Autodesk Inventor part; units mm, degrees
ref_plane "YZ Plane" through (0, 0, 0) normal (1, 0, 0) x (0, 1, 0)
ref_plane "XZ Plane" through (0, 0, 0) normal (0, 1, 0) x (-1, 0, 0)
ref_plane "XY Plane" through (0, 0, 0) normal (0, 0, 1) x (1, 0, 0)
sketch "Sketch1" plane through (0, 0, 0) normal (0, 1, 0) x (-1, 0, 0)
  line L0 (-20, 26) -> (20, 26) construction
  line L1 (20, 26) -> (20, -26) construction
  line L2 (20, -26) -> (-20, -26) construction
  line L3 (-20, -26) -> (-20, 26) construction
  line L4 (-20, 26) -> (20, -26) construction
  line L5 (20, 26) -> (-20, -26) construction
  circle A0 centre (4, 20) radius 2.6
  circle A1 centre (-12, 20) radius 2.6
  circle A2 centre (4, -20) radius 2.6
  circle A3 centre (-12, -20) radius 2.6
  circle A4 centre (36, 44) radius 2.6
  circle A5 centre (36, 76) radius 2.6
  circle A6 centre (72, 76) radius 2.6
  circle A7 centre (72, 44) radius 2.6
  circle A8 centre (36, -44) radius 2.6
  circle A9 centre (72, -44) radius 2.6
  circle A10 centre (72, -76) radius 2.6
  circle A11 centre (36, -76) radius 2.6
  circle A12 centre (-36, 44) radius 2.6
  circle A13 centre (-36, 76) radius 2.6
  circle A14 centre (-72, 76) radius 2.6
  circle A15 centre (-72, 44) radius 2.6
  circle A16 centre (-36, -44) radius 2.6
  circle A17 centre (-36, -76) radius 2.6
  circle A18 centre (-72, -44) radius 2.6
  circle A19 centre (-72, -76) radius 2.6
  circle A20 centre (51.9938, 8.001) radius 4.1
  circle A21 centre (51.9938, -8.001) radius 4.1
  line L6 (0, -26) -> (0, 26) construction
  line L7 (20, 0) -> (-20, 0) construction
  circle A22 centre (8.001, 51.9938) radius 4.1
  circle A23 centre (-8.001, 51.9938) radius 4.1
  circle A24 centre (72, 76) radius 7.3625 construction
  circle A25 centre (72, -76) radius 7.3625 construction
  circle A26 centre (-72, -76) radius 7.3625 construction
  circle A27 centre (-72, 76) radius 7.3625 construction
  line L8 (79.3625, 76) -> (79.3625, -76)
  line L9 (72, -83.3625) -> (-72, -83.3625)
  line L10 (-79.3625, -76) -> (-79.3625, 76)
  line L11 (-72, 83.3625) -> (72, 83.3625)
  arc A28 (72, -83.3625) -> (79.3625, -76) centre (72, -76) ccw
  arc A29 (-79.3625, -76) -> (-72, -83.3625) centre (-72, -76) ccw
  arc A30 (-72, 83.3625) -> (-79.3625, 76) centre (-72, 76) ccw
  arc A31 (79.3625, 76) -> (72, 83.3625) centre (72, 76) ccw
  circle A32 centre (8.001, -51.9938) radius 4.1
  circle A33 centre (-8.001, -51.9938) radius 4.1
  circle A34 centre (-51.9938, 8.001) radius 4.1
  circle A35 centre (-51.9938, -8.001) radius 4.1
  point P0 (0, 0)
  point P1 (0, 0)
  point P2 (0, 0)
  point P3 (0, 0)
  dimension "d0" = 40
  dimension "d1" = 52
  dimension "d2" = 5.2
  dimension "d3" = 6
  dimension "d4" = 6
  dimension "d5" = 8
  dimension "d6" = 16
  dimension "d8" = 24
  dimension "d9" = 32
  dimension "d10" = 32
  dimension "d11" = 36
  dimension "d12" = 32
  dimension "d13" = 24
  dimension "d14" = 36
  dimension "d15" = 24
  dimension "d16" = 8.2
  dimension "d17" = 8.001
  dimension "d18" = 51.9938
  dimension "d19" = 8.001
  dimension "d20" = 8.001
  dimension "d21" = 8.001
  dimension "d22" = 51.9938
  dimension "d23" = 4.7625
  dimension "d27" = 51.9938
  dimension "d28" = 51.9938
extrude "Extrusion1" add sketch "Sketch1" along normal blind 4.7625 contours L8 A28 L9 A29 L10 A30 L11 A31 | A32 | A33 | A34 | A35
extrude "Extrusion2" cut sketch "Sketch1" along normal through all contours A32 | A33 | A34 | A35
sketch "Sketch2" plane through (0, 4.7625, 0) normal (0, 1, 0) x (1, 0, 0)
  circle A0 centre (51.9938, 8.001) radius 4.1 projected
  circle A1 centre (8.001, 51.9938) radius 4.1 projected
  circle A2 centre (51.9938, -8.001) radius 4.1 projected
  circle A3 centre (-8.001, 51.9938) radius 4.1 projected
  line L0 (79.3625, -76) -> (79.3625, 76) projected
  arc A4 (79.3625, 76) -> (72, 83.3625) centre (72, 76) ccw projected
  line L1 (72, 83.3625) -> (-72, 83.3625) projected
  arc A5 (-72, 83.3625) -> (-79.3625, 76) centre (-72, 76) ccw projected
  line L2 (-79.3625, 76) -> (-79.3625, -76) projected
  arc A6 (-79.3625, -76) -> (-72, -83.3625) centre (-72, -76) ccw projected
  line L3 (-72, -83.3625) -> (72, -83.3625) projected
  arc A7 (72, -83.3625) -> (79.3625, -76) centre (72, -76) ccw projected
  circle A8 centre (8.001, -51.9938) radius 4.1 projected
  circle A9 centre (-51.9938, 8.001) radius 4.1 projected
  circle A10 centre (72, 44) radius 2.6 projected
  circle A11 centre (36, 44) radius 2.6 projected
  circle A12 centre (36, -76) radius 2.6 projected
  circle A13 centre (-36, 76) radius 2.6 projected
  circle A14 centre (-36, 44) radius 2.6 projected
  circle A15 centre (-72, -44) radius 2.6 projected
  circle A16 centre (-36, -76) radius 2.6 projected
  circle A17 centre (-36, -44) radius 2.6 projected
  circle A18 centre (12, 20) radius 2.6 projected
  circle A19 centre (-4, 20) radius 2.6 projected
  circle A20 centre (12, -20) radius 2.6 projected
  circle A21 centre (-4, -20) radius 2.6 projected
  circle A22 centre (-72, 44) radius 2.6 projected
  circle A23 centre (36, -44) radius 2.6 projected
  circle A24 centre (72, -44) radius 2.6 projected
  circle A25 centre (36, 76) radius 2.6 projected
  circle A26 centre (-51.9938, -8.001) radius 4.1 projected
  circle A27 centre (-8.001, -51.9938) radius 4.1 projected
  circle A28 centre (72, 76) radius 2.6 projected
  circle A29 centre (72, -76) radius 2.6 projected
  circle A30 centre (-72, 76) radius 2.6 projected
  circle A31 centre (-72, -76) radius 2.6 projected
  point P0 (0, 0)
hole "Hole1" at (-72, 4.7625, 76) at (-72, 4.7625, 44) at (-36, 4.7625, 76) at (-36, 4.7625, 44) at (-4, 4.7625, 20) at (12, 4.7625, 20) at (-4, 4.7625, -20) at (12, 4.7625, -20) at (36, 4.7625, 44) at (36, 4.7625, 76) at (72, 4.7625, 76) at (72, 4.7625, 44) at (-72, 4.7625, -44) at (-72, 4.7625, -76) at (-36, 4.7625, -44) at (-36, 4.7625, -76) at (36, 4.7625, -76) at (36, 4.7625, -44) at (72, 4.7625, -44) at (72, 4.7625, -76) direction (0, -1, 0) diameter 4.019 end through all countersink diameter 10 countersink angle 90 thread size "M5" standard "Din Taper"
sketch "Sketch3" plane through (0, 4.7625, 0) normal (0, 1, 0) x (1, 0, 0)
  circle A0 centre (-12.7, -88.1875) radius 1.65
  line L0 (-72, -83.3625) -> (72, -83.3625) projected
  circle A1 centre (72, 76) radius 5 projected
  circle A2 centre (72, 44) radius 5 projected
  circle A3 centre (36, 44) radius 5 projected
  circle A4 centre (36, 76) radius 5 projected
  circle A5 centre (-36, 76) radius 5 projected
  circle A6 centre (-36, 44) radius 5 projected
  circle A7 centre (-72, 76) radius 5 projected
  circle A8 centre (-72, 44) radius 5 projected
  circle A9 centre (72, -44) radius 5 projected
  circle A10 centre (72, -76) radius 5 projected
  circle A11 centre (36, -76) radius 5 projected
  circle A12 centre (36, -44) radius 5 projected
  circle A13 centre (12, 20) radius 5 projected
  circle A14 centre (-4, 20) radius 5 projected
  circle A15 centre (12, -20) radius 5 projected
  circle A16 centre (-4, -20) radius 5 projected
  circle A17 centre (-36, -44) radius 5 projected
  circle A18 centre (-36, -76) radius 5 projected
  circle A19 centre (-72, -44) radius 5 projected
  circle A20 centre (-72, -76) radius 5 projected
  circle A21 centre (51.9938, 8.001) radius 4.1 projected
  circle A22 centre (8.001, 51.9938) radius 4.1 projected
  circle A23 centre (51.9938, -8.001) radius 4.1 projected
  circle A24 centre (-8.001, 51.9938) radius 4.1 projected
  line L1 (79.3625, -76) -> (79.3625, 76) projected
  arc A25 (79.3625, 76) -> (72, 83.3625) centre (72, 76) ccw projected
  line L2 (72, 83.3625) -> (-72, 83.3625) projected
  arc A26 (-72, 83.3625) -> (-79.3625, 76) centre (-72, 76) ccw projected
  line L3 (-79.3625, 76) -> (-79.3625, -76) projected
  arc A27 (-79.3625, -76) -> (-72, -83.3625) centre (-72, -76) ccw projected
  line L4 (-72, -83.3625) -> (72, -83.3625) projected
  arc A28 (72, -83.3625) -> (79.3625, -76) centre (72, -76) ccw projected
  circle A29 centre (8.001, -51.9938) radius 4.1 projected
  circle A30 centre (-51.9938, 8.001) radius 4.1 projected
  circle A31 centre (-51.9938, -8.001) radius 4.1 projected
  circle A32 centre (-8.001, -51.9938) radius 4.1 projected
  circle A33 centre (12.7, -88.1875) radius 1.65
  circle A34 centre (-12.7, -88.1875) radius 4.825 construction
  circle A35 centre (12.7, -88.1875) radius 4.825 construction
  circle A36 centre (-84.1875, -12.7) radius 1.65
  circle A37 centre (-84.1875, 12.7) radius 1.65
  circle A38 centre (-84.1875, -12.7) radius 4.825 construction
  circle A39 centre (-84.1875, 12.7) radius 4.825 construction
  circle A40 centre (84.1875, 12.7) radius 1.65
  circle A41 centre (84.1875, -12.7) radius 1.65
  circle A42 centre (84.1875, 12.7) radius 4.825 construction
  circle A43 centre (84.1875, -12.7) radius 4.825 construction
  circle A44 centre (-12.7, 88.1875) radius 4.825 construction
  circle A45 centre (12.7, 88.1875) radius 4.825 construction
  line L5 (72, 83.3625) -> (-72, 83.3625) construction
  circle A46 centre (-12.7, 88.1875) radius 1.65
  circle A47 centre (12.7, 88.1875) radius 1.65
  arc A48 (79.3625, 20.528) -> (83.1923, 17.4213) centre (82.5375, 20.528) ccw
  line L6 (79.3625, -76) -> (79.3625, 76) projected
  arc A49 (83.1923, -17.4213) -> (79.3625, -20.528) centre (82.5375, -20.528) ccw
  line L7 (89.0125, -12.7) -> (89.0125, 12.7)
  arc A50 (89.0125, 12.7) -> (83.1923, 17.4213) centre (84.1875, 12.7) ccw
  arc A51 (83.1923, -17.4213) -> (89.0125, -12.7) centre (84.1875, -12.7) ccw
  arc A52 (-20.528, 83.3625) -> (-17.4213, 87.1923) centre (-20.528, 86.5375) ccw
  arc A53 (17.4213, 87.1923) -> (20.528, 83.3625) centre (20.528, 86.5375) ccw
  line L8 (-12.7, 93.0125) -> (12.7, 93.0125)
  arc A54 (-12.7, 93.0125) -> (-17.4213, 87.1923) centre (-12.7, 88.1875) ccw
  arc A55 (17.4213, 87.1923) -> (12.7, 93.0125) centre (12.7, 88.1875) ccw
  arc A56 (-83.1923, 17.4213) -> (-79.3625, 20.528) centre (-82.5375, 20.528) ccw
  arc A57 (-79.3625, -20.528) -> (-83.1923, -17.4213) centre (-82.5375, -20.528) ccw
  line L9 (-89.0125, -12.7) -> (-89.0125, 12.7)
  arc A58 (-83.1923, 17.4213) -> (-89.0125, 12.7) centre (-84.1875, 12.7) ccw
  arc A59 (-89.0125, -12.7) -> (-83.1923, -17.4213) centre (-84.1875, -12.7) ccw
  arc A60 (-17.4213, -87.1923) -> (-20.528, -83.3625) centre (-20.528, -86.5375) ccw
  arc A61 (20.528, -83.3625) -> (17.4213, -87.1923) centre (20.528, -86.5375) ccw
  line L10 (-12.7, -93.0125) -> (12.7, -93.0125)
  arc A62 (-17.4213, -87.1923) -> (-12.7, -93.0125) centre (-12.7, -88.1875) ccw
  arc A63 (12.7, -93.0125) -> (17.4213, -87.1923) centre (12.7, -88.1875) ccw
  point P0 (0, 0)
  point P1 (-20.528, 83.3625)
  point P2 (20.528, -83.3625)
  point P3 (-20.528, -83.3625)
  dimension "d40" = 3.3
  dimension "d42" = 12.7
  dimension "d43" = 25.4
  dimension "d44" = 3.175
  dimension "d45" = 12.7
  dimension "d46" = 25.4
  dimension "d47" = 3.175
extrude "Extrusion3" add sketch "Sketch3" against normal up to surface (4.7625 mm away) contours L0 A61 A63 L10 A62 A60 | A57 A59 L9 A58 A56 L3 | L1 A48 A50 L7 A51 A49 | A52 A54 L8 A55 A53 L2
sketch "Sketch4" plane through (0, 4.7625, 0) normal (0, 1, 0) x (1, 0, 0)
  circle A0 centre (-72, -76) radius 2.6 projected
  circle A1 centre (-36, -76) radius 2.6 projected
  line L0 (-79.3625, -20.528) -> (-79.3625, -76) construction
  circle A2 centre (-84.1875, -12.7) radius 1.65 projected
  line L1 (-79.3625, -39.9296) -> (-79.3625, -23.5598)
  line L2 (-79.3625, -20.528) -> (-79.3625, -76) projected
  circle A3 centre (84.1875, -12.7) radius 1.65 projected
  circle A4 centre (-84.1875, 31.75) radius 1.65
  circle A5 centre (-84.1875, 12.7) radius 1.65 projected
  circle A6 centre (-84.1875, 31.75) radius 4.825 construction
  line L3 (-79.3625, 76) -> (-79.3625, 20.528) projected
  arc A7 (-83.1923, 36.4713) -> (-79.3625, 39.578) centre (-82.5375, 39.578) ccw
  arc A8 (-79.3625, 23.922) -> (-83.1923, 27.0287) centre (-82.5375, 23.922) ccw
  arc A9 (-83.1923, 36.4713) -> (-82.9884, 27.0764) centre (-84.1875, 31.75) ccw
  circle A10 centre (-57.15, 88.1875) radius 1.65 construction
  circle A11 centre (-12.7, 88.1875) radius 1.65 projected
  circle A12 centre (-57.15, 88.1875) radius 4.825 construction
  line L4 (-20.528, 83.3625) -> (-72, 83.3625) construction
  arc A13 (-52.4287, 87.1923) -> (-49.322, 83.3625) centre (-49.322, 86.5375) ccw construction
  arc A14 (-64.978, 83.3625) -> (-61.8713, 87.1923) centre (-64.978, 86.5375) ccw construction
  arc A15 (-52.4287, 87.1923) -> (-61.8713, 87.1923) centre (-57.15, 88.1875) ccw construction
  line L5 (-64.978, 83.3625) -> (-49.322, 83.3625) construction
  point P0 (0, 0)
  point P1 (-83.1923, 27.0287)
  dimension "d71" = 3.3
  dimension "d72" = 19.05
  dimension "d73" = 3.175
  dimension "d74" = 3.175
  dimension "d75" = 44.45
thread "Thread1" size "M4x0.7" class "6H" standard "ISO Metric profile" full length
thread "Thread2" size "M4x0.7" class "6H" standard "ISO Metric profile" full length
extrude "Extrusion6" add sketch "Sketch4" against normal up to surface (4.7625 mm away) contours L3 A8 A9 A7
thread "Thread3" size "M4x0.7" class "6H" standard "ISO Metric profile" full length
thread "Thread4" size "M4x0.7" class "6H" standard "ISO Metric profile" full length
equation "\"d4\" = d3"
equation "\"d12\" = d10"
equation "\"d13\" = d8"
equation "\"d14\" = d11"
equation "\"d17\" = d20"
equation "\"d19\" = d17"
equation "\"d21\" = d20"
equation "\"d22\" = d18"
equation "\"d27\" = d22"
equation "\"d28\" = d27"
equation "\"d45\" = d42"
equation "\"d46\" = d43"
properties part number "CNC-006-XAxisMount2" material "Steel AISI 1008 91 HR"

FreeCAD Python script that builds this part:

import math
import FreeCAD as App
import Part
import Sketcher

doc = App.newDocument("Part")
body = doc.addObject("PartDesign::Body", "Body")

# Sketch on XZ plane
sketch1 = body.newObject("Sketcher::SketchObject", "Sketch")
sketch1.AttachmentSupport = (doc.getObject("XZ_Plane"), [""])
sketch1.MapMode = "FlatFace"
sketch1.addGeometry([
    Part.LineSegment(App.Vector(-79.4, -76, 0), App.Vector(-79.4, 76, 0)),  # 0
    Part.ArcOfCircle(Part.Circle(App.Vector(-72, 76, 0), App.Vector(0, 0, 1), 7.4), math.radians(90), math.radians(180)),  # 1
    Part.LineSegment(App.Vector(-72, 83.4, 0), App.Vector(72, 83.4, 0)),  # 2
    Part.ArcOfCircle(Part.Circle(App.Vector(72, 76, 0), App.Vector(0, 0, 1), 7.4), math.radians(0), math.radians(90)),  # 3
    Part.LineSegment(App.Vector(79.4, 76, 0), App.Vector(79.4, -76, 0)),  # 4
    Part.ArcOfCircle(Part.Circle(App.Vector(72, -76, 0), App.Vector(0, 0, 1), 7.4), math.radians(-90), math.radians(0)),  # 5
    Part.LineSegment(App.Vector(72, -83.4, 0), App.Vector(-72, -83.4, 0)),  # 6
    Part.ArcOfCircle(Part.Circle(App.Vector(-72, -76, 0), App.Vector(0, 0, 1), 7.4), math.radians(180), math.radians(270)),  # 7
    Part.Circle(App.Vector(72, -76, 0), App.Vector(0, 0, 1), 2.6),  # 8
    Part.Circle(App.Vector(72, -44, 0), App.Vector(0, 0, 1), 2.6),  # 9
    Part.Circle(App.Vector(36, -76, 0), App.Vector(0, 0, 1), 2.6),  # 10
    Part.Circle(App.Vector(36, -44, 0), App.Vector(0, 0, 1), 2.6),  # 11
    Part.Circle(App.Vector(12, -20, 0), App.Vector(0, 0, 1), 2.6),  # 12
    Part.Circle(App.Vector(-36, -76, 0), App.Vector(0, 0, 1), 2.6),  # 13
    Part.Circle(App.Vector(-36, -44, 0), App.Vector(0, 0, 1), 2.6),  # 14
    Part.Circle(App.Vector(-72, -76, 0), App.Vector(0, 0, 1), 2.6),  # 15
    Part.Circle(App.Vector(-72, -44, 0), App.Vector(0, 0, 1), 2.6),  # 16
    Part.Circle(App.Vector(-4, -20, 0), App.Vector(0, 0, 1), 2.6),  # 17
    Part.Circle(App.Vector(-52, -8, 0), App.Vector(0, 0, 1), 4.1),  # 18
    Part.Circle(App.Vector(12, 20, 0), App.Vector(0, 0, 1), 2.6),  # 19
    Part.Circle(App.Vector(72, 44, 0), App.Vector(0, 0, 1), 2.6),  # 20
    Part.Circle(App.Vector(72, 76, 0), App.Vector(0, 0, 1), 2.6),  # 21
    Part.Circle(App.Vector(36, 44, 0), App.Vector(0, 0, 1), 2.6),  # 22
    Part.Circle(App.Vector(8, 52, 0), App.Vector(0, 0, 1), 4.1),  # 23
    Part.Circle(App.Vector(36, 76, 0), App.Vector(0, 0, 1), 2.6),  # 24
    Part.Circle(App.Vector(-4, 20, 0), App.Vector(0, 0, 1), 2.6),  # 25
    Part.Circle(App.Vector(-52, 8, 0), App.Vector(0, 0, 1), 4.1),  # 26
    Part.Circle(App.Vector(-8, 52, 0), App.Vector(0, 0, 1), 4.1),  # 27
    Part.Circle(App.Vector(-36, 44, 0), App.Vector(0, 0, 1), 2.6),  # 28
    Part.Circle(App.Vector(-36, 76, 0), App.Vector(0, 0, 1), 2.6),  # 29
    Part.Circle(App.Vector(-72, 44, 0), App.Vector(0, 0, 1), 2.6),  # 30
    Part.Circle(App.Vector(-72, 76, 0), App.Vector(0, 0, 1), 2.6),  # 31
], False)
sketch1.addConstraint([
    Sketcher.Constraint("Tangent", 0, 2, 1, 2),
    Sketcher.Constraint("Tangent", 1, 1, 2, 1),
    Sketcher.Constraint("Tangent", 2, 2, 3, 2),
    Sketcher.Constraint("Tangent", 3, 1, 4, 1),
    Sketcher.Constraint("Tangent", 4, 2, 5, 2),
    Sketcher.Constraint("Tangent", 5, 1, 6, 1),
    Sketcher.Constraint("Tangent", 6, 2, 7, 2),
    Sketcher.Constraint("Tangent", 7, 1, 0, 1),
    Sketcher.Constraint("Vertical", 0),
    Sketcher.Constraint("Horizontal", 2),
    Sketcher.Constraint("Vertical", 4),
    Sketcher.Constraint("Horizontal", 6),
    Sketcher.Constraint("Coincident", 8, 3, 5, 3),
    Sketcher.Constraint("Coincident", 15, 3, 7, 3),
    Sketcher.Constraint("Coincident", 21, 3, 3, 3),
    Sketcher.Constraint("Coincident", 31, 3, 1, 3),
    Sketcher.Constraint("Equal", 1, 3),
    Sketcher.Constraint("Equal", 3, 5),
    Sketcher.Constraint("Equal", 5, 7),
    Sketcher.Constraint("Equal", 8, 9),
    Sketcher.Constraint("Equal", 9, 10),
    Sketcher.Constraint("Equal", 10, 11),
    Sketcher.Constraint("Equal", 11, 12),
    Sketcher.Constraint("Equal", 12, 13),
    Sketcher.Constraint("Equal", 13, 14),
    Sketcher.Constraint("Equal", 14, 15),
    Sketcher.Constraint("Equal", 15, 16),
    Sketcher.Constraint("Equal", 16, 17),
    Sketcher.Constraint("Equal", 17, 19),
    Sketcher.Constraint("Equal", 19, 20),
    Sketcher.Constraint("Equal", 20, 21),
    Sketcher.Constraint("Equal", 21, 22),
    Sketcher.Constraint("Equal", 18, 23),
    Sketcher.Constraint("Equal", 22, 24),
    Sketcher.Constraint("Equal", 24, 25),
    Sketcher.Constraint("Equal", 23, 26),
    Sketcher.Constraint("Equal", 26, 27),
    Sketcher.Constraint("Equal", 25, 28),
    Sketcher.Constraint("Equal", 28, 29),
    Sketcher.Constraint("Equal", 29, 30),
    Sketcher.Constraint("Equal", 30, 31),
    Sketcher.Constraint("Symmetric", 1, 3, 5, 3, -1, 1),
    Sketcher.Constraint("Symmetric", 16, 3, 20, 3, -1, 1),
    Sketcher.Constraint("Symmetric", 14, 3, 22, 3, -1, 1),
    Sketcher.Constraint("Symmetric", 13, 3, 24, 3, -1, 1),
    Sketcher.Constraint("Symmetric", 11, 3, 28, 3, -1, 1),
    Sketcher.Constraint("Symmetric", 10, 3, 29, 3, -1, 1),
    Sketcher.Constraint("Symmetric", 9, 3, 30, 3, -1, 1),
    Sketcher.Constraint("Symmetric", 10, 3, 13, 3, -2),
    Sketcher.Constraint("Symmetric", 11, 3, 14, 3, -2),
    Sketcher.Constraint("Symmetric", 9, 3, 16, 3, -2),
    Sketcher.Constraint("Symmetric", 23, 3, 27, 3, -2),
    Sketcher.Constraint("Symmetric", 12, 3, 19, 3, -1),
    Sketcher.Constraint("Symmetric", 17, 3, 25, 3, -1),
    Sketcher.Constraint("Symmetric", 18, 3, 26, 3, -1),
    Sketcher.Constraint("Horizontal", 8, 3, 10, 3),
    Sketcher.Constraint("Horizontal", 9, 3, 11, 3),
    Sketcher.Constraint("Horizontal", 12, 3, 17, 3),
    Sketcher.Constraint("Vertical", 8, 3, 9, 3),
    Sketcher.Constraint("Vertical", 10, 3, 11, 3),
    Sketcher.Constraint("Diameter", 8, 5.2),
    Sketcher.Constraint("Diameter", 18, 8.2),
    Sketcher.Constraint("DistanceX", -1, 1, 10, 3, 36.0),
    Sketcher.Constraint("DistanceY", 5, 3, 9, 3, 32.0),
    Sketcher.Constraint("DistanceX", 10, 3, 5, 3, 36.0),
    Sketcher.Constraint("DistanceX", 12, 3, 11, 3, 24.0),
    Sketcher.Constraint("DistanceY", 11, 3, 12, 3, 24.0),
    Sketcher.Constraint("DistanceX", 17, 3, 12, 3, 16.0),
    Sketcher.Constraint("DistanceY", 12, 3, 19, 3, 40.0),
    Sketcher.Constraint("DistanceY", 18, 3, -1, 1, 8.001),
    Sketcher.Constraint("DistanceX", -1, 1, 23, 3, 8.001),
    Sketcher.Constraint("DistanceX", 18, 3, -1, 1, 51.9938),
    Sketcher.Constraint("DistanceY", -1, 1, 23, 3, 51.9938),
    Sketcher.Constraint("Radius", 1, 7.3625),
])
pad1 = body.newObject("PartDesign::Pad", "Pad")
pad1.Profile = sketch1
pad1.Length = 4.7625
pad1.Reversed = True

# Sketch on XZ plane
sketch2 = body.newObject("Sketcher::SketchObject", "Sketch001")
sketch2.AttachmentSupport = (doc.getObject("XZ_Plane"), [""])
sketch2.MapMode = "FlatFace"
sketch2.addGeometry([
    Part.Circle(App.Vector(-8, -52, 0), App.Vector(0, 0, 1), 4.1),
    Part.Circle(App.Vector(8, -52, 0), App.Vector(0, 0, 1), 4.1),
    Part.Circle(App.Vector(52, 8, 0), App.Vector(0, 0, 1), 4.1),
    Part.Circle(App.Vector(52, -8, 0), App.Vector(0, 0, 1), 4.1),
], False)
sketch2.addConstraint([
    Sketcher.Constraint("Equal", 0, 1),
    Sketcher.Constraint("Equal", 1, 2),
    Sketcher.Constraint("Equal", 2, 3),
    Sketcher.Constraint("Symmetric", 0, 3, 1, 3, -2),
    Sketcher.Constraint("Symmetric", 2, 3, 3, 3, -1),
    Sketcher.Constraint("Diameter", 0, 8.2),
    Sketcher.Constraint("DistanceX", 0, 3, -1, 1, 8.001),
    Sketcher.Constraint("DistanceY", -1, 1, 2, 3, 8.001),
    Sketcher.Constraint("DistanceY", 0, 3, -1, 1, 51.9938),
    Sketcher.Constraint("DistanceX", -1, 1, 2, 3, 51.9938),
])
pocket1 = body.newObject("PartDesign::Pocket", "Pocket")
pocket1.Profile = sketch2
pocket1.Type = "ThroughAll"

# Sketch on XZ plane
sketch3 = body.newObject("Sketcher::SketchObject", "Sketch002")
sketch3.AttachmentSupport = (doc.getObject("XZ_Plane"), [""])
sketch3.MapMode = "FlatFace"
sketch3.AttachmentOffset = App.Placement(App.Vector(0, 0, -4.7625), App.Rotation())
sketch3.addGeometry([
    Part.Circle(App.Vector(-72, 76, 0), App.Vector(0, 0, 1), 2),  # 0
    Part.Circle(App.Vector(-72, 44, 0), App.Vector(0, 0, 1), 2),  # 1
    Part.Circle(App.Vector(-36, 76, 0), App.Vector(0, 0, 1), 2),  # 2
    Part.Circle(App.Vector(-36, 44, 0), App.Vector(0, 0, 1), 2),  # 3
    Part.Circle(App.Vector(-4, 20, 0), App.Vector(0, 0, 1), 2),  # 4
    Part.Circle(App.Vector(12, 20, 0), App.Vector(0, 0, 1), 2),  # 5
    Part.Circle(App.Vector(-4, -20, 0), App.Vector(0, 0, 1), 2),  # 6
    Part.Circle(App.Vector(12, -20, 0), App.Vector(0, 0, 1), 2),  # 7
    Part.Circle(App.Vector(36, 44, 0), App.Vector(0, 0, 1), 2),  # 8
    Part.Circle(App.Vector(36, 76, 0), App.Vector(0, 0, 1), 2),  # 9
    Part.Circle(App.Vector(72, 76, 0), App.Vector(0, 0, 1), 2),  # 10
    Part.Circle(App.Vector(72, 44, 0), App.Vector(0, 0, 1), 2),  # 11
    Part.Circle(App.Vector(-72, -44, 0), App.Vector(0, 0, 1), 2),  # 12
    Part.Circle(App.Vector(-72, -76, 0), App.Vector(0, 0, 1), 2),  # 13
    Part.Circle(App.Vector(-36, -44, 0), App.Vector(0, 0, 1), 2),  # 14
    Part.Circle(App.Vector(-36, -76, 0), App.Vector(0, 0, 1), 2),  # 15
    Part.Circle(App.Vector(36, -76, 0), App.Vector(0, 0, 1), 2),  # 16
    Part.Circle(App.Vector(36, -44, 0), App.Vector(0, 0, 1), 2),  # 17
    Part.Circle(App.Vector(72, -44, 0), App.Vector(0, 0, 1), 2),  # 18
    Part.Circle(App.Vector(72, -76, 0), App.Vector(0, 0, 1), 2),  # 19
], False)
sketch3.addConstraint([
    Sketcher.Constraint("Equal", 0, 1),
    Sketcher.Constraint("Equal", 1, 2),
    Sketcher.Constraint("Equal", 2, 3),
    Sketcher.Constraint("Equal", 3, 4),
    Sketcher.Constraint("Equal", 4, 5),
    Sketcher.Constraint("Equal", 5, 6),
    Sketcher.Constraint("Equal", 6, 7),
    Sketcher.Constraint("Equal", 7, 8),
    Sketcher.Constraint("Equal", 8, 9),
    Sketcher.Constraint("Equal", 9, 10),
    Sketcher.Constraint("Equal", 10, 11),
    Sketcher.Constraint("Equal", 11, 12),
    Sketcher.Constraint("Equal", 12, 13),
    Sketcher.Constraint("Equal", 13, 14),
    Sketcher.Constraint("Equal", 14, 15),
    Sketcher.Constraint("Equal", 15, 16),
    Sketcher.Constraint("Equal", 16, 17),
    Sketcher.Constraint("Equal", 17, 18),
    Sketcher.Constraint("Equal", 18, 19),
    Sketcher.Constraint("Symmetric", 11, 3, 12, 3, -1, 1),
    Sketcher.Constraint("Symmetric", 10, 3, 13, 3, -1, 1),
    Sketcher.Constraint("Symmetric", 8, 3, 14, 3, -1, 1),
    Sketcher.Constraint("Symmetric", 9, 3, 15, 3, -1, 1),
    Sketcher.Constraint("Symmetric", 2, 3, 16, 3, -1, 1),
    Sketcher.Constraint("Symmetric", 3, 3, 17, 3, -1, 1),
    Sketcher.Constraint("Symmetric", 1, 3, 18, 3, -1, 1),
    Sketcher.Constraint("Symmetric", 0, 3, 19, 3, -1, 1),
    Sketcher.Constraint("Symmetric", 3, 3, 8, 3, -2),
    Sketcher.Constraint("Symmetric", 2, 3, 9, 3, -2),
    Sketcher.Constraint("Symmetric", 0, 3, 10, 3, -2),
    Sketcher.Constraint("Symmetric", 1, 3, 11, 3, -2),
    Sketcher.Constraint("Symmetric", 4, 3, 6, 3, -1),
    Sketcher.Constraint("Symmetric", 5, 3, 7, 3, -1),
    Sketcher.Constraint("Horizontal", 0, 3, 2, 3),
    Sketcher.Constraint("Horizontal", 1, 3, 3, 3),
    Sketcher.Constraint("Horizontal", 4, 3, 5, 3),
    Sketcher.Constraint("Vertical", 0, 3, 1, 3),
    Sketcher.Constraint("Vertical", 2, 3, 3, 3),
    Sketcher.Constraint("Diameter", 0, 4.019),
    Sketcher.Constraint("DistanceX", 0, 3, -1, 1, 72.0),
    Sketcher.Constraint("DistanceY", -1, 1, 0, 3, 76.0),
    Sketcher.Constraint("DistanceY", -1, 1, 1, 3, 44.0),
    Sketcher.Constraint("DistanceX", 2, 3, -1, 1, 36.0),
    Sketcher.Constraint("DistanceX", 4, 3, -1, 1, 4.0),
    Sketcher.Constraint("DistanceY", -1, 1, 4, 3, 20.0),
    Sketcher.Constraint("DistanceX", -1, 1, 5, 3, 12.0),
])
doc.recompute()
hole = body.newObject("PartDesign::Hole", "Hole")
hole.Profile = sketch3
hole.ThreadType = "None"
hole.Diameter = 4.019
hole.DepthType = "ThroughAll"
hole.HoleCutType = "Countersink"
hole.HoleCutDiameter = 10
hole.HoleCutCountersinkAngle = 90
hole.Reversed = True

# Sketch on XZ plane
sketch4 = body.newObject("Sketcher::SketchObject", "Sketch003")
sketch4.AttachmentSupport = (doc.getObject("XZ_Plane"), [""])
sketch4.MapMode = "FlatFace"
sketch4.AttachmentOffset = App.Placement(App.Vector(0, 0, -4.7625), App.Rotation())
sketch4.addGeometry([
    Part.LineSegment(App.Vector(20.5, 83.4, 0), App.Vector(-20.5, 83.4, 0)),  # 0
    Part.ArcOfCircle(Part.Circle(App.Vector(-20.5, 86.5, 0), App.Vector(0, 0, 1), 3.2), math.radians(-90), math.radians(12)),  # 1
    Part.ArcOfCircle(Part.Circle(App.Vector(-12.7, 88.2, 0), App.Vector(0, 0, 1), 4.8), math.radians(90), math.radians(192)),  # 2
    Part.LineSegment(App.Vector(-12.7, 93, 0), App.Vector(12.7, 93, 0)),  # 3
    Part.ArcOfCircle(Part.Circle(App.Vector(12.7, 88.2, 0), App.Vector(0, 0, 1), 4.8), math.radians(-12), math.radians(90)),  # 4
    Part.ArcOfCircle(Part.Circle(App.Vector(20.5, 86.5, 0), App.Vector(0, 0, 1), 3.2), math.radians(168), math.radians(270)),  # 5
    Part.Circle(App.Vector(-12.7, 88.2, 0), App.Vector(0, 0, 1), 1.6),  # 6
    Part.Circle(App.Vector(12.7, 88.2, 0), App.Vector(0, 0, 1), 1.6),  # 7
    Part.ArcOfCircle(Part.Circle(App.Vector(-82.5, 20.5, 0), App.Vector(0, 0, 1), 3.2), math.radians(-102), math.radians(0)),  # 8
    Part.LineSegment(App.Vector(-79.4, 20.5, 0), App.Vector(-79.4, -20.5, 0)),  # 9
    Part.ArcOfCircle(Part.Circle(App.Vector(-82.5, -20.5, 0), App.Vector(0, 0, 1), 3.2), math.radians(0), math.radians(102)),  # 10
    Part.ArcOfCircle(Part.Circle(App.Vector(-84.2, -12.7, 0), App.Vector(0, 0, 1), 4.8), math.radians(180), math.radians(282)),  # 11
    Part.LineSegment(App.Vector(-89, -12.7, 0), App.Vector(-89, 12.7, 0)),  # 12
    Part.ArcOfCircle(Part.Circle(App.Vector(-84.2, 12.7, 0), App.Vector(0, 0, 1), 4.8), math.radians(78), math.radians(180)),  # 13
    Part.Circle(App.Vector(-84.2, 12.7, 0), App.Vector(0, 0, 1), 1.6),  # 14
    Part.Circle(App.Vector(-84.2, -12.7, 0), App.Vector(0, 0, 1), 1.6),  # 15
    Part.LineSegment(App.Vector(79.4, -20.5, 0), App.Vector(79.4, 20.5, 0)),  # 16
    Part.ArcOfCircle(Part.Circle(App.Vector(82.5, 20.5, 0), App.Vector(0, 0, 1), 3.2), math.radians(180), math.radians(282)),  # 17
    Part.ArcOfCircle(Part.Circle(App.Vector(84.2, 12.7, 0), App.Vector(0, 0, 1), 4.8), math.radians(0), math.radians(102)),  # 18
    Part.LineSegment(App.Vector(89, 12.7, 0), App.Vector(89, -12.7, 0)),  # 19
    Part.ArcOfCircle(Part.Circle(App.Vector(84.2, -12.7, 0), App.Vector(0, 0, 1), 4.8), math.radians(-102), math.radians(0)),  # 20
    Part.ArcOfCircle(Part.Circle(App.Vector(82.5, -20.5, 0), App.Vector(0, 0, 1), 3.2), math.radians(78), math.radians(180)),  # 21
    Part.Circle(App.Vector(84.2, 12.7, 0), App.Vector(0, 0, 1), 1.6),  # 22
    Part.Circle(App.Vector(84.2, -12.7, 0), App.Vector(0, 0, 1), 1.6),  # 23
    Part.ArcOfCircle(Part.Circle(App.Vector(-20.5, -86.5, 0), App.Vector(0, 0, 1), 3.2), math.radians(-12), math.radians(90)),  # 24
    Part.LineSegment(App.Vector(-20.5, -83.4, 0), App.Vector(20.5, -83.4, 0)),  # 25
    Part.ArcOfCircle(Part.Circle(App.Vector(20.5, -86.5, 0), App.Vector(0, 0, 1), 3.2), math.radians(90), math.radians(192)),  # 26
    Part.ArcOfCircle(Part.Circle(App.Vector(12.7, -88.2, 0), App.Vector(0, 0, 1), 4.8), math.radians(-90), math.radians(12)),  # 27
    Part.LineSegment(App.Vector(12.7, -93, 0), App.Vector(-12.7, -93, 0)),  # 28
    Part.ArcOfCircle(Part.Circle(App.Vector(-12.7, -88.2, 0), App.Vector(0, 0, 1), 4.8), math.radians(168), math.radians(270)),  # 29
    Part.Circle(App.Vector(-12.7, -88.2, 0), App.Vector(0, 0, 1), 1.6),  # 30
    Part.Circle(App.Vector(12.7, -88.2, 0), App.Vector(0, 0, 1), 1.6),  # 31
], False)
sketch4.addConstraint([
    Sketcher.Constraint("Tangent", 0, 2, 1, 1),
    Sketcher.Constraint("Tangent", 1, 2, 2, 2),
    Sketcher.Constraint("Tangent", 2, 1, 3, 1),
    Sketcher.Constraint("Tangent", 3, 2, 4, 2),
    Sketcher.Constraint("Tangent", 4, 1, 5, 1),
    Sketcher.Constraint("Tangent", 5, 2, 0, 1),
    Sketcher.Constraint("Tangent", 8, 2, 9, 1),
    Sketcher.Constraint("Tangent", 9, 2, 10, 1),
    Sketcher.Constraint("Tangent", 10, 2, 11, 2),
    Sketcher.Constraint("Tangent", 11, 1, 12, 1),
    Sketcher.Constraint("Tangent", 12, 2, 13, 2),
    Sketcher.Constraint("Tangent", 13, 1, 8, 1),
    Sketcher.Constraint("Tangent", 16, 2, 17, 1),
    Sketcher.Constraint("Tangent", 17, 2, 18, 2),
    Sketcher.Constraint("Tangent", 18, 1, 19, 1),
    Sketcher.Constraint("Tangent", 19, 2, 20, 2),
    Sketcher.Constraint("Tangent", 20, 1, 21, 1),
    Sketcher.Constraint("Tangent", 21, 2, 16, 1),
    Sketcher.Constraint("Tangent", 24, 2, 25, 1),
    Sketcher.Constraint("Tangent", 25, 2, 26, 1),
    Sketcher.Constraint("Tangent", 26, 2, 27, 2),
    Sketcher.Constraint("Tangent", 27, 1, 28, 1),
    Sketcher.Constraint("Tangent", 28, 2, 29, 2),
    Sketcher.Constraint("Tangent", 29, 1, 24, 1),
    Sketcher.Constraint("Horizontal", 0),
    Sketcher.Constraint("Horizontal", 3),
    Sketcher.Constraint("Vertical", 9),
    Sketcher.Constraint("Vertical", 12),
    Sketcher.Constraint("Vertical", 16),
    Sketcher.Constraint("Vertical", 19),
    Sketcher.Constraint("Horizontal", 25),
    Sketcher.Constraint("Horizontal", 28),
    Sketcher.Constraint("Coincident", 6, 3, 2, 3),
    Sketcher.Constraint("Coincident", 7, 3, 4, 3),
    Sketcher.Constraint("Coincident", 14, 3, 13, 3),
    Sketcher.Constraint("Coincident", 15, 3, 11, 3),
    Sketcher.Constraint("Coincident", 22, 3, 18, 3),
    Sketcher.Constraint("Coincident", 23, 3, 20, 3),
    Sketcher.Constraint("Coincident", 30, 3, 29, 3),
    Sketcher.Constraint("Coincident", 31, 3, 27, 3),
    Sketcher.Constraint("Equal", 2, 4),
    Sketcher.Constraint("Equal", 1, 5),
    Sketcher.Constraint("Equal", 6, 7),
    Sketcher.Constraint("Equal", 5, 8),
    Sketcher.Constraint("Equal", 8, 10),
    Sketcher.Constraint("Equal", 4, 11),
    Sketcher.Constraint("Equal", 11, 13),
    Sketcher.Constraint("Equal", 7, 14),
    Sketcher.Constraint("Equal", 14, 15),
    Sketcher.Constraint("Equal", 10, 17),
    Sketcher.Constraint("Equal", 13, 18),
    Sketcher.Constraint("Equal", 18, 20),
    Sketcher.Constraint("Equal", 17, 21),
    Sketcher.Constraint("Equal", 15, 22),
    Sketcher.Constraint("Equal", 22, 23),
    Sketcher.Constraint("Equal", 21, 24),
    Sketcher.Constraint("Equal", 24, 26),
    Sketcher.Constraint("Equal", 20, 27),
    Sketcher.Constraint("Equal", 27, 29),
    Sketcher.Constraint("Equal", 23, 30),
    Sketcher.Constraint("Equal", 30, 31),
    Sketcher.Constraint("Symmetric", 10, 3, 17, 3, -1, 1),
    Sketcher.Constraint("Symmetric", 13, 3, 20, 3, -1, 1),
    Sketcher.Constraint("Symmetric", 5, 3, 24, 3, -1, 1),
    Sketcher.Constraint("Symmetric", 2, 3, 27, 3, -1, 1),
    Sketcher.Constraint("Horizontal", 8, 3, 17, 3),
    Sketcher.Constraint("Vertical", 1, 3, 24, 3),
    Sketcher.Constraint("Equal", 25, 9),
    Sketcher.Constraint("Equal", 28, 12),
    Sketcher.Constraint("Diameter", 6, 3.3),
    Sketcher.Constraint("DistanceX", 3, 1, 3, 2, 25.4),
    Sketcher.Constraint("Radius", 1, 3.175),
    Sketcher.Constraint("Radius", 2, 4.825),
    Sketcher.Constraint("DistanceX", 0, 2, 0, 1, 41.056),
    Sketcher.Constraint("DistanceY", -1, 1, 1, 3, 86.5375),
    Sketcher.Constraint("DistanceX", 8, 3, -1, 1, 82.5375),
])
pad2 = body.newObject("PartDesign::Pad", "Pad001")
pad2.Profile = sketch4
pad2.Length = 4.7625

# Sketch on XZ plane
sketch5 = body.newObject("Sketcher::SketchObject", "Sketch004")
sketch5.AttachmentSupport = (doc.getObject("XZ_Plane"), [""])
sketch5.MapMode = "FlatFace"
sketch5.AttachmentOffset = App.Placement(App.Vector(0, 0, -4.7625), App.Rotation())
sketch5.addGeometry([
    Part.LineSegment(App.Vector(-79.4, -23.9, 0), App.Vector(-79.4, -39.6, 0)),  # 0
    Part.ArcOfCircle(Part.Circle(App.Vector(-82.5, -39.6, 0), App.Vector(0, 0, 1), 3.2), math.radians(0), math.radians(102)),  # 1
    Part.ArcOfCircle(Part.Circle(App.Vector(-84.2, -31.8, 0), App.Vector(0, 0, 1), 4.8), math.radians(78), math.radians(282)),  # 2
    Part.ArcOfCircle(Part.Circle(App.Vector(-82.5, -23.9, 0), App.Vector(0, 0, 1), 3.2), math.radians(-102), math.radians(0)),  # 3
    Part.Circle(App.Vector(-84.2, -31.8, 0), App.Vector(0, 0, 1), 1.6),  # 4
], False)
sketch5.addConstraint([
    Sketcher.Constraint("Tangent", 0, 2, 1, 1),
    Sketcher.Constraint("Tangent", 1, 2, 2, 2),
    Sketcher.Constraint("Tangent", 2, 1, 3, 1),
    Sketcher.Constraint("Tangent", 3, 2, 0, 1),
    Sketcher.Constraint("Vertical", 0),
    Sketcher.Constraint("Coincident", 4, 3, 2, 3),
    Sketcher.Constraint("Equal", 1, 3),
    Sketcher.Constraint("Diameter", 4, 3.3),
    Sketcher.Constraint("Radius", 1, 3.175),
    Sketcher.Constraint("Radius", 2, 4.825),
    Sketcher.Constraint("DistanceY", 0, 2, 0, 1, 15.656),
    Sketcher.Constraint("DistanceY", 2, 3, -1, 1, 31.75),
    Sketcher.Constraint("DistanceX", 1, 3, -1, 1, 82.5375),
])
pad3 = body.newObject("PartDesign::Pad", "Pad002")
pad3.Profile = sketch5
pad3.Length = 4.7625

doc.recompute()
